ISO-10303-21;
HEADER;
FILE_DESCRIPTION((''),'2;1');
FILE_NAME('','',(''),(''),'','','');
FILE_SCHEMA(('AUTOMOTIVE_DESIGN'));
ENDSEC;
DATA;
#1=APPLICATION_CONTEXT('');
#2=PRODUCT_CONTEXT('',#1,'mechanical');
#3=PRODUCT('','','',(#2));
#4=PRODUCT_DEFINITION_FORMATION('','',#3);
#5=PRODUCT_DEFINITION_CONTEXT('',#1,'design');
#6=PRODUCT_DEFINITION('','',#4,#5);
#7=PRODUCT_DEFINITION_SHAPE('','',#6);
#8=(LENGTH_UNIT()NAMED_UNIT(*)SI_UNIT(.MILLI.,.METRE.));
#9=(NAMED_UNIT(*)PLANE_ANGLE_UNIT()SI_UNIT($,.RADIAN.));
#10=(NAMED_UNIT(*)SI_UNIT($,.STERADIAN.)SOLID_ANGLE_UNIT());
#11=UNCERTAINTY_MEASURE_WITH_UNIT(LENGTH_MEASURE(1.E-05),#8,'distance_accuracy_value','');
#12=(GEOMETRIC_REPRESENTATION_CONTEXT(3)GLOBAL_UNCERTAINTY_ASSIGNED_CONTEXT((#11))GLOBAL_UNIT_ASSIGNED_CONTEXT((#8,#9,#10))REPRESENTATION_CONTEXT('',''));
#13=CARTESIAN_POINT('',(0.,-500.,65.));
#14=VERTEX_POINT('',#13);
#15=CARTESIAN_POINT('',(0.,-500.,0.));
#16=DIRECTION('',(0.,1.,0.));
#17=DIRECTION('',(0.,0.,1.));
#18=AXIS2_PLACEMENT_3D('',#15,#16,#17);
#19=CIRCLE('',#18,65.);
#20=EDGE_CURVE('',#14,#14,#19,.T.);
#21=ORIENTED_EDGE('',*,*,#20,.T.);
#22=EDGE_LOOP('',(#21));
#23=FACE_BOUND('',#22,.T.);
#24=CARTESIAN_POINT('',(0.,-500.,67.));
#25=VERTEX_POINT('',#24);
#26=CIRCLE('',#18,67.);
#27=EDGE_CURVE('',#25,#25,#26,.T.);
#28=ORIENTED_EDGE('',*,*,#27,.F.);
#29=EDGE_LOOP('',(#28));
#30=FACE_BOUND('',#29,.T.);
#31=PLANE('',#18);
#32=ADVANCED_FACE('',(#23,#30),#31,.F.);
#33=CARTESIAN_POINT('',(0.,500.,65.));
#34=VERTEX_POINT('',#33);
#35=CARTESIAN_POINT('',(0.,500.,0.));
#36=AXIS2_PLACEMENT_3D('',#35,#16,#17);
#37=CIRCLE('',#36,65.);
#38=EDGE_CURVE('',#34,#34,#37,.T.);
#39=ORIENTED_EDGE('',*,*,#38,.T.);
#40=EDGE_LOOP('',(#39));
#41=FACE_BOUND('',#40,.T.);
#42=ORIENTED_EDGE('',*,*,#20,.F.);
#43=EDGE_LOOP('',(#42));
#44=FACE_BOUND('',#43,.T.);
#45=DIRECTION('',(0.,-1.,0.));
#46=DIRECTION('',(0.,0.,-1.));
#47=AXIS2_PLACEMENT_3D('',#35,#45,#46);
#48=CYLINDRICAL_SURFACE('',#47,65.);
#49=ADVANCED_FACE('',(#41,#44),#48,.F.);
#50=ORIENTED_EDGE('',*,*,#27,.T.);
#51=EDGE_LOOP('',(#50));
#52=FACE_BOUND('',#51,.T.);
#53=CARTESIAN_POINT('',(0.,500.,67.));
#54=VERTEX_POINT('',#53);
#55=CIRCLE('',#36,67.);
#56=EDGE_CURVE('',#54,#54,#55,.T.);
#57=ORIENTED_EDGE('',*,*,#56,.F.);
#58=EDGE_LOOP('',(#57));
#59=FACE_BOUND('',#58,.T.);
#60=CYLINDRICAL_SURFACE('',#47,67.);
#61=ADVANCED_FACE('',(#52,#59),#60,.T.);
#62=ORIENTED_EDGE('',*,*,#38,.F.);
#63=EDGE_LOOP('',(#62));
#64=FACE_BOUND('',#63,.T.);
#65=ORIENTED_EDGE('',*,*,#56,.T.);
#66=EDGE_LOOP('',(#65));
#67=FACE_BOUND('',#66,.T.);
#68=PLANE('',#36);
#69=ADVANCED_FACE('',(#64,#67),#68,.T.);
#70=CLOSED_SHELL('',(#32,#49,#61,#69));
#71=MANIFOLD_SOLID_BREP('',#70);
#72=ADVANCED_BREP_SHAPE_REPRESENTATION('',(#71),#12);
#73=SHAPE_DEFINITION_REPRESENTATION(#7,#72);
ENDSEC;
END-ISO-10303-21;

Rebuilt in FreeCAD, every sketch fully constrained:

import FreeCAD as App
import Part
import Sketcher
Q = App.Units.Quantity

doc = App.newDocument("Part")
params = doc.addObject("Spreadsheet::Sheet", "Params")
for row, (alias, value) in enumerate([
    ("sketch1_diameter", "134 mm"),
    ("sketch1_diameter2", "130 mm"),
    ("pad1_length", "1000 mm"),
], start=1):
    params.set(f"A{row}", alias)
    params.set(f"B{row}", "=" + value)
    params.setAlias(f"B{row}", alias)

body = doc.addObject("PartDesign::Body", "Body")

# Sketch on XZ plane
sketch1 = body.newObject("Sketcher::SketchObject", "Sketch")
sketch1.AttachmentSupport = (doc.getObject("XZ_Plane"), [""])
sketch1.MapMode = "FlatFace"
sketch1.addGeometry([
    Part.Circle(App.Vector(0, 0, 0), App.Vector(0, 0, 1), 67),
    Part.Circle(App.Vector(0, 0, 0), App.Vector(0, 0, 1), 65),
], False)
sketch1.addConstraint([
    Sketcher.Constraint("Coincident", 0, 3, -1, 1),
    Sketcher.Constraint("Coincident", 1, 3, -1, 1),
    Sketcher.Constraint("Diameter", 0, Q("134 mm")),
    Sketcher.Constraint("Diameter", 1, Q("130 mm")),
])
sketch1.setExpression("Constraints[2]", "Params.sketch1_diameter")
sketch1.setExpression("Constraints[3]", "Params.sketch1_diameter2")
pad1 = body.newObject("PartDesign::Pad", "Pad")
pad1.Profile = sketch1
pad1.setExpression("Length", "Params.pad1_length")
pad1.Midplane = True

doc.recompute()
